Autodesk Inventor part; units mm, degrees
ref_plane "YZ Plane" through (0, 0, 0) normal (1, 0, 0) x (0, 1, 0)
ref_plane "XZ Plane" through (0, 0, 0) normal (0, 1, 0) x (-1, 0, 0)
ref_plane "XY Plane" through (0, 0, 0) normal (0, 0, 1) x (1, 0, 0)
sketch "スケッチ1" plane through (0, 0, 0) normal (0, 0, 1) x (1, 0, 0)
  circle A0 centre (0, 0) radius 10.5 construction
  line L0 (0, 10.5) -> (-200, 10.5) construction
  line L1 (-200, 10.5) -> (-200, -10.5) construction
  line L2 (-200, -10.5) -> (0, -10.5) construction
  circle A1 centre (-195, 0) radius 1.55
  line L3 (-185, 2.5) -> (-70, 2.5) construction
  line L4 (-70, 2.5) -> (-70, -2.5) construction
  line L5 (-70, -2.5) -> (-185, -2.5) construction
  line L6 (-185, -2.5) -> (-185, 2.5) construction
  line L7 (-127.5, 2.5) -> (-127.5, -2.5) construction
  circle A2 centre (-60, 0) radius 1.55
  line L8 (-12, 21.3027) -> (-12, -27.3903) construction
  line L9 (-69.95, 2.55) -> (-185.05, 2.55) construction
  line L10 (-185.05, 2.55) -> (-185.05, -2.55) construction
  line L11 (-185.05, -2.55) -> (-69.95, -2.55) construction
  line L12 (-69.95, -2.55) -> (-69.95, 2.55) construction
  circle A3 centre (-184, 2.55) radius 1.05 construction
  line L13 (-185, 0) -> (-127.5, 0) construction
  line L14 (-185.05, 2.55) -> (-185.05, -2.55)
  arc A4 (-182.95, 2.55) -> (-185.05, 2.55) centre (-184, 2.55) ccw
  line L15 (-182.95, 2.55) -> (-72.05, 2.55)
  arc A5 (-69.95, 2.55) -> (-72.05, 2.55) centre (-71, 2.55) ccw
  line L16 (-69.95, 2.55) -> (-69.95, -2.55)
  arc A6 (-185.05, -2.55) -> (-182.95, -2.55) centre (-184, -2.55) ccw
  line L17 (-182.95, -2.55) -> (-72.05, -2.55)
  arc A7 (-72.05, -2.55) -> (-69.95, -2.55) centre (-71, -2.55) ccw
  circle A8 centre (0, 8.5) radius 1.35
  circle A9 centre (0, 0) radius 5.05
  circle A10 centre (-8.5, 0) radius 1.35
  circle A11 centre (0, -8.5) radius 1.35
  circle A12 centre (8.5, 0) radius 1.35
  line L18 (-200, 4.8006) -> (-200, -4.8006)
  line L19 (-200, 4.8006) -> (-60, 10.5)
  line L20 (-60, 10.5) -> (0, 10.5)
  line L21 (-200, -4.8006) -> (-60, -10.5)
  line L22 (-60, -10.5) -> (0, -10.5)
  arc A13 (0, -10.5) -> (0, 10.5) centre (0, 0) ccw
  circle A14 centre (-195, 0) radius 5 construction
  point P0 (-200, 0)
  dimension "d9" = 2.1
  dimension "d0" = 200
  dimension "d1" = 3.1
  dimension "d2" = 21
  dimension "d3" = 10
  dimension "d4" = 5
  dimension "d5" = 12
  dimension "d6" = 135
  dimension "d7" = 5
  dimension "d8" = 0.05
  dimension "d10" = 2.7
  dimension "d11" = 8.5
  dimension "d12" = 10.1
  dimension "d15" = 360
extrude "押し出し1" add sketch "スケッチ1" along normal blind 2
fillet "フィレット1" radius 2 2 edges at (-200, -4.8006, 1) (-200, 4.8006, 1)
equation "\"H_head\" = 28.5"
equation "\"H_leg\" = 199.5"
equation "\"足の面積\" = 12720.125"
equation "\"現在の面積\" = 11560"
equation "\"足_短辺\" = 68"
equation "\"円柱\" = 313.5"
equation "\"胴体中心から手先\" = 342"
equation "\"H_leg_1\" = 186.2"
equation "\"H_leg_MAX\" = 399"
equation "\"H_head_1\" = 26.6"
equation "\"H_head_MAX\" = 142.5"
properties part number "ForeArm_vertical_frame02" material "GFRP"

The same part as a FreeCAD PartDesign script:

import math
import FreeCAD as App
import Part
import Sketcher
from FreeCAD import Vector


def edges_at(feature, points):
    """Names of the edges that pass closest to the given points."""
    edges = feature.Shape.Edges
    near = lambda p: min(range(len(edges)), key=lambda i: edges[i].distToShape(Part.Vertex(*p))[0])
    return sorted({f"Edge{near(p) + 1}" for p in points})

doc = App.newDocument("Part")
params = doc.addObject("Spreadsheet::Sheet", "Params")
for row, (alias, value) in enumerate([
    ("sketch1_diameter", "2.7 mm"),
    ("sketch1_diameter2", "3.1 mm"),
    ("sketch1_diameter3", "10.1 mm"),
    ("sketch1_radius", "10.5 mm"),
    ("sketch1_radius2", "1.05 mm"),
    ("pad1_length", "2 mm"),
    ("fillet_radius", "2 mm"),
], start=1):
    params.set(f"A{row}", alias)
    params.set(f"B{row}", "=" + value)
    params.setAlias(f"B{row}", alias)

body = doc.addObject("PartDesign::Body", "Body")

# Sketch on XY plane
sketch1 = doc.addObject("Sketcher::SketchObject", "Sketch")
body.addObject(sketch1)
sketch1.AttachmentSupport = (doc.XY_Plane, [""])
sketch1.MapMode = "FlatFace"
sketch1.addGeometry([
    Part.LineSegment(Vector(-60, 10.5, 0), Vector(-200, 4.8, 0)),  # 0
    Part.LineSegment(Vector(-200, 4.8, 0), Vector(-200, -4.8, 0)),  # 1
    Part.LineSegment(Vector(-200, -4.8, 0), Vector(-60, -10.5, 0)),  # 2
    Part.LineSegment(Vector(-60, -10.5, 0), Vector(0, -10.5, 0)),  # 3
    Part.ArcOfCircle(Part.Circle(Vector(0, 0, 0), Vector(0, 0, 1), 10.5), math.radians(-90), math.radians(90)),  # 4
    Part.LineSegment(Vector(0, 10.5, 0), Vector(-60, 10.5, 0)),  # 5
    Part.Circle(Vector(0, -8.5, 0), Vector(0, 0, 1), 1.4),  # 6
    Part.Circle(Vector(-195, 0, 0), Vector(0, 0, 1), 1.6),  # 7
    Part.LineSegment(Vector(-185.1, -2.5, 0), Vector(-185.1, 2.5, 0)),  # 8
    Part.ArcOfCircle(Part.Circle(Vector(-184, 2.5, 0), Vector(0, 0, 1), 1.1), math.radians(0), math.radians(180)),  # 9
    Part.LineSegment(Vector(-182.9, 2.5, 0), Vector(-72, 2.5, 0)),  # 10
    Part.ArcOfCircle(Part.Circle(Vector(-71, 2.5, 0), Vector(0, 0, 1), 1), math.radians(0), math.radians(180)),  # 11
    Part.LineSegment(Vector(-70, 2.5, 0), Vector(-70, -2.5, 0)),  # 12
    Part.ArcOfCircle(Part.Circle(Vector(-71, -2.5, 0), Vector(0, 0, 1), 1), math.radians(180), math.radians(360)),  # 13
    Part.LineSegment(Vector(-72, -2.5, 0), Vector(-182.9, -2.5, 0)),  # 14
    Part.ArcOfCircle(Part.Circle(Vector(-184, -2.5, 0), Vector(0, 0, 1), 1.1), math.radians(180), math.radians(360)),  # 15
    Part.Circle(Vector(-60, 0, 0), Vector(0, 0, 1), 1.6),  # 16
    Part.Circle(Vector(-8.5, 0, 0), Vector(0, 0, 1), 1.4),  # 17
    Part.Circle(Vector(0, 0, 0), Vector(0, 0, 1), 5),  # 18
    Part.Circle(Vector(8.5, 0, 0), Vector(0, 0, 1), 1.4),  # 19
    Part.Circle(Vector(0, 8.5, 0), Vector(0, 0, 1), 1.4),  # 20
], False)
sketch1.addConstraint([
    Sketcher.Constraint("Coincident", 0, 2, 1, 1),
    Sketcher.Constraint("Coincident", 1, 2, 2, 1),
    Sketcher.Constraint("Coincident", 2, 2, 3, 1),
    Sketcher.Constraint("Tangent", 3, 2, 4, 1),
    Sketcher.Constraint("Tangent", 4, 2, 5, 1),
    Sketcher.Constraint("Coincident", 5, 2, 0, 1),
    Sketcher.Constraint("Tangent", 8, 2, 9, 2),
    Sketcher.Constraint("Coincident", 9, 1, 10, 1),
    Sketcher.Constraint("Coincident", 10, 2, 11, 2),
    Sketcher.Constraint("Tangent", 11, 1, 12, 1),
    Sketcher.Constraint("Tangent", 12, 2, 13, 2),
    Sketcher.Constraint("Coincident", 13, 1, 14, 1),
    Sketcher.Constraint("Coincident", 14, 2, 15, 2),
    Sketcher.Constraint("Tangent", 15, 1, 8, 1),
    Sketcher.Constraint("Vertical", 1),
    Sketcher.Constraint("Horizontal", 3),
    Sketcher.Constraint("Horizontal", 5),
    Sketcher.Constraint("Vertical", 8),
    Sketcher.Constraint("Horizontal", 10),
    Sketcher.Constraint("Vertical", 12),
    Sketcher.Constraint("Horizontal", 14),
    Sketcher.Constraint("Coincident", 4, 3, -1, 1),
    Sketcher.Constraint("Coincident", 18, 3, -1, 1),
    Sketcher.Constraint("Equal", 9, 11),
    Sketcher.Constraint("Equal", 11, 13),
    Sketcher.Constraint("Equal", 13, 15),
    Sketcher.Constraint("Equal", 7, 16),
    Sketcher.Constraint("Equal", 6, 17),
    Sketcher.Constraint("Equal", 17, 19),
    Sketcher.Constraint("Equal", 19, 20),
    Sketcher.Constraint("Symmetric", 17, 3, 19, 3, -1, 1),
    Sketcher.Constraint("Symmetric", 6, 3, 20, 3, -1, 1),
    Sketcher.Constraint("PointOnObject", 6, 3, -2),
    Sketcher.Constraint("PointOnObject", 7, 3, -1),
    Sketcher.Constraint("PointOnObject", 16, 3, -1),
    Sketcher.Constraint("PointOnObject", 17, 3, -1),
    Sketcher.Constraint("Horizontal", 9, 3, 11, 3),
    Sketcher.Constraint("Horizontal", 13, 3, 15, 3),
    Sketcher.Constraint("Horizontal", 8, 2, 9, 1),
    Sketcher.Constraint("Horizontal", 12, 2, 13, 1),
    Sketcher.Constraint("Vertical", 16, 3, 2, 2),
    Sketcher.Constraint("Vertical", 2, 2, 5, 2),
    Sketcher.Constraint("Equal", 0, 2),
    Sketcher.Constraint("Diameter", 6, 2.7),
    Sketcher.Constraint("Diameter", 7, 3.1),
    Sketcher.Constraint("Diameter", 18, 10.1),
    Sketcher.Constraint("Radius", 4, 10.5),
    Sketcher.Constraint("Radius", 9, 1.05),
    Sketcher.Constraint("DistanceX", 0, 2, -1, 1, 200.0),
    Sketcher.Constraint("DistanceX", 0, 2, 7, 3, 5.0),
    Sketcher.Constraint("DistanceY", 6, 3, -1, 1, 8.5),
    Sketcher.Constraint("DistanceX", 17, 3, -1, 1, 8.5),
    Sketcher.Constraint("DistanceX", 3, 1, 3, 2, 60.0),
    Sketcher.Constraint("DistanceX", 10, 1, 10, 2, 110.9),
    Sketcher.Constraint("DistanceY", 8, 1, 8, 2, 5.1),
    Sketcher.Constraint("DistanceX", 9, 3, -1, 1, 184.0),
    Sketcher.Constraint("DistanceY", -1, 1, 9, 3, 2.55),
    Sketcher.Constraint("Distance", 0, 140.116),
])
sketch1.setExpression("Constraints[43]", "Params.sketch1_diameter")
sketch1.setExpression("Constraints[44]", "Params.sketch1_diameter2")
sketch1.setExpression("Constraints[45]", "Params.sketch1_diameter3")
sketch1.setExpression("Constraints[46]", "Params.sketch1_radius")
sketch1.setExpression("Constraints[47]", "Params.sketch1_radius2")
pad1 = doc.addObject("PartDesign::Pad", "Pad")
body.addObject(pad1)
pad1.Profile = sketch1
pad1.setExpression("Length", "Params.pad1_length")
doc.recompute()

fillet = doc.addObject("PartDesign::Fillet", "Fillet")
body.addObject(fillet)
fillet.Base = (pad1, edges_at(pad1, [(-200, -4.801, 1), (-200, 4.801, 1)]))
fillet.setExpression("Radius", "Params.fillet_radius")

doc.recompute()
